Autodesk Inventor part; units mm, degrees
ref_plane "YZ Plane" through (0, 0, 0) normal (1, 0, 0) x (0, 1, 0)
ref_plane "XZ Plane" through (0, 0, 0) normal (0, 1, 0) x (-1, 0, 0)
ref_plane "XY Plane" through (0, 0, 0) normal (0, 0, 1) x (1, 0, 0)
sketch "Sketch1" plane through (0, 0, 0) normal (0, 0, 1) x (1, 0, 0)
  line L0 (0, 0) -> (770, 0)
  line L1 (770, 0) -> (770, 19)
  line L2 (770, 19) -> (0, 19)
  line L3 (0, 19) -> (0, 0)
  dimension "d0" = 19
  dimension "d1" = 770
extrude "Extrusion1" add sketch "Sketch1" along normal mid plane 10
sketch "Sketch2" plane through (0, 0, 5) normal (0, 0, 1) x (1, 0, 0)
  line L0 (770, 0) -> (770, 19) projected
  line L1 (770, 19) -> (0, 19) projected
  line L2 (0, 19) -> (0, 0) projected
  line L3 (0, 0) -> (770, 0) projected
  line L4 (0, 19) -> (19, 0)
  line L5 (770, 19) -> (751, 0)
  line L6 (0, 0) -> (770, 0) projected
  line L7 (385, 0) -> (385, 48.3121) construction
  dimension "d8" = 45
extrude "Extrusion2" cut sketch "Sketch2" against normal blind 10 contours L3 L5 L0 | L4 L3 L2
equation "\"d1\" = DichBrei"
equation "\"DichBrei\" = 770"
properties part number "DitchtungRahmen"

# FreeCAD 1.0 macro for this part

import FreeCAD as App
import Part
import Sketcher
Q = App.Units.Quantity


def add_polygon(sketch, points):
    """Adds a closed chain of lines whose ends are joined by coincident constraints."""
    first, n = sketch.GeometryCount, len(points)
    for a, b in zip(points, points[1:] + points[:1]):
        sketch.addGeometry(Part.LineSegment(App.Vector(*a, 0), App.Vector(*b, 0)), False)
    for i in range(n):
        sketch.addConstraint(Sketcher.Constraint("Coincident", first + i, 2, first + (i + 1) % n, 1))

doc = App.newDocument("Part")
body = doc.addObject("PartDesign::Body", "Body")

sketch1 = body.newObject("Sketcher::SketchObject", "Sketch")
sketch1.AttachmentSupport = (doc.getObject("XY_Plane"), [""])
sketch1.MapMode = "FlatFace"
add_polygon(sketch1, [(0, 19), (0, 0), (770, 0), (770, 19)])
sketch1.addConstraint(Sketcher.Constraint("Vertical", 0))
sketch1.addConstraint(Sketcher.Constraint("Horizontal", 1))
sketch1.addConstraint(Sketcher.Constraint("Vertical", 2))
sketch1.addConstraint(Sketcher.Constraint("Horizontal", 3))
sketch1.addConstraint(Sketcher.Constraint("Coincident", 0, 2, -1, 1))
sketch1.addConstraint(Sketcher.Constraint("DistanceX", 1, 1, 1, 2, Q("770 mm")))
sketch1.addConstraint(Sketcher.Constraint("DistanceY", 0, 2, 0, 1, Q("19 mm")))
pad1 = body.newObject("PartDesign::Pad", "Pad")
pad1.Profile = sketch1
pad1.Length = 10
pad1.Midplane = True

sketch2 = body.newObject("Sketcher::SketchObject", "Sketch001")
sketch2.AttachmentSupport = (doc.getObject("XY_Plane"), [""])
sketch2.MapMode = "FlatFace"
sketch2.AttachmentOffset = App.Placement(App.Vector(0, 0, 5), App.Rotation())
add_polygon(sketch2, [(751, 0), (770, 0), (770, 19)])
add_polygon(sketch2, [(19, 0), (0, 19), (0, 0)])
sketch2.addConstraint(Sketcher.Constraint("Horizontal", 0))
sketch2.addConstraint(Sketcher.Constraint("Vertical", 1))
sketch2.addConstraint(Sketcher.Constraint("Vertical", 4))
sketch2.addConstraint(Sketcher.Constraint("Horizontal", 5))
sketch2.addConstraint(Sketcher.Constraint("Coincident", 4, 2, -1, 1))
sketch2.addConstraint(Sketcher.Constraint("PointOnObject", 0, 2, -1))
sketch2.addConstraint(Sketcher.Constraint("Perpendicular", 2, 3))
sketch2.addConstraint(Sketcher.Constraint("Horizontal", 1, 2, 3, 2))
sketch2.addConstraint(Sketcher.Constraint("Equal", 0, 5))
sketch2.addConstraint(Sketcher.Constraint("DistanceX", 0, 1, 0, 2, Q("19 mm")))
sketch2.addConstraint(Sketcher.Constraint("DistanceX", -1, 1, 0, 2, Q("770 mm")))
pocket1 = body.newObject("PartDesign::Pocket", "Pocket")
pocket1.Profile = sketch2
pocket1.Length = 10

doc.recompute()
